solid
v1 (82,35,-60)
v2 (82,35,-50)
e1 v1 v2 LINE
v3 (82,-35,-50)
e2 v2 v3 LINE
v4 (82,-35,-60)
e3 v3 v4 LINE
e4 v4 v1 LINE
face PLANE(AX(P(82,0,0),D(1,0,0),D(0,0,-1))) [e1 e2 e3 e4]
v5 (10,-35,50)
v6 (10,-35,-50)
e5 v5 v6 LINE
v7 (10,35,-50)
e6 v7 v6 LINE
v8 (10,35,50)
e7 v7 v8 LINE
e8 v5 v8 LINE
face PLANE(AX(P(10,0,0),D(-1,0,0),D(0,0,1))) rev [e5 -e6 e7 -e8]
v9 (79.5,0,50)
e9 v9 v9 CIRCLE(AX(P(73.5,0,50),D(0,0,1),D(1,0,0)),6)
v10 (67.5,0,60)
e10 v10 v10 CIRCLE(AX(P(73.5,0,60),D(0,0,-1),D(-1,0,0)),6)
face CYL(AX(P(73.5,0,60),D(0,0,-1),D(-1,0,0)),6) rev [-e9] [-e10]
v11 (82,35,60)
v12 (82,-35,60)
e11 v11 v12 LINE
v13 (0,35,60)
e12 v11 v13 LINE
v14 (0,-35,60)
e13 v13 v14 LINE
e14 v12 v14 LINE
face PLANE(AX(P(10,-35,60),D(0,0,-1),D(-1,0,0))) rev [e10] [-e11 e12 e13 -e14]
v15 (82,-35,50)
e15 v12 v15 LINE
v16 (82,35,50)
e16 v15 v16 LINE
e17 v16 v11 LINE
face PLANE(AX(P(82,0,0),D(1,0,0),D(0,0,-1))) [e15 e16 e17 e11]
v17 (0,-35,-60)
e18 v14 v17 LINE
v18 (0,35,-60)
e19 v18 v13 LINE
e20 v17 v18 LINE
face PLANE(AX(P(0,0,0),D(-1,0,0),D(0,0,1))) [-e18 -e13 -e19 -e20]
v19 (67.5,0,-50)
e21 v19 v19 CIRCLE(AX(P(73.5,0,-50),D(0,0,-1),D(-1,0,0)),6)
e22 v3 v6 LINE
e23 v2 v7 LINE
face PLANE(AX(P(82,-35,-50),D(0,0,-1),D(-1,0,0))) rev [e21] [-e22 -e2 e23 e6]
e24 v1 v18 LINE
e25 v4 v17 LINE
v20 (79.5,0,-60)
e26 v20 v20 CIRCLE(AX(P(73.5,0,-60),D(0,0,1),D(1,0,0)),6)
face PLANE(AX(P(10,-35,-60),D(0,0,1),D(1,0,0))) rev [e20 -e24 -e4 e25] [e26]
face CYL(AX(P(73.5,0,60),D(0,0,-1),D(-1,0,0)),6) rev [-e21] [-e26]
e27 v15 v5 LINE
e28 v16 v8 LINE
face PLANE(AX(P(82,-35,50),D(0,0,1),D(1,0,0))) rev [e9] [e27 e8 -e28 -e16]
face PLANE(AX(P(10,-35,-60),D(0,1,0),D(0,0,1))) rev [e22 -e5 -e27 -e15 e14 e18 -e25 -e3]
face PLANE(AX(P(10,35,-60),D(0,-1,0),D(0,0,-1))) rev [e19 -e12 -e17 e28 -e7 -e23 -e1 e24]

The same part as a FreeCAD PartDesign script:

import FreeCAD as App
import Part
import Sketcher
from FreeCAD import Vector
Q = App.Units.Quantity

doc = App.newDocument("Part")
body = doc.addObject("PartDesign::Body", "Body")

# Sketch on YZ plane
sketch1 = doc.addObject("Sketcher::SketchObject", "Sketch")
body.addObject(sketch1)
sketch1.AttachmentSupport = (doc.YZ_Plane, [""])
sketch1.MapMode = "FlatFace"
sketch1.addGeometry([
    Part.LineSegment(Vector(-35, 60, 0), Vector(-35, -60, 0)),
    Part.LineSegment(Vector(-35, -60, 0), Vector(35, -60, 0)),
    Part.LineSegment(Vector(35, -60, 0), Vector(35, 60, 0)),
    Part.LineSegment(Vector(35, 60, 0), Vector(-35, 60, 0)),
], False)
sketch1.addConstraint([
    Sketcher.Constraint("Coincident", 0, 2, 1, 1),
    Sketcher.Constraint("Coincident", 1, 2, 2, 1),
    Sketcher.Constraint("Coincident", 2, 2, 3, 1),
    Sketcher.Constraint("Coincident", 3, 2, 0, 1),
    Sketcher.Constraint("Vertical", 0),
    Sketcher.Constraint("Horizontal", 1),
    Sketcher.Constraint("Vertical", 2),
    Sketcher.Constraint("Horizontal", 3),
    Sketcher.Constraint("Symmetric", 0, 2, 2, 2, -1, 1),
    Sketcher.Constraint("DistanceX", 1, 1, 1, 2, Q("70 mm")),
    Sketcher.Constraint("DistanceY", 0, 2, 0, 1, Q("120 mm")),
])
pad1 = doc.addObject("PartDesign::Pad", "Pad")
body.addObject(pad1)
pad1.Profile = sketch1
pad1.Length = 10

# Sketch on YZ plane
sketch2 = doc.addObject("Sketcher::SketchObject", "Sketch001")
body.addObject(sketch2)
sketch2.AttachmentSupport = (doc.YZ_Plane, [""])
sketch2.MapMode = "FlatFace"
sketch2.AttachmentOffset = App.Placement(Vector(0, 0, 10), App.Rotation())
sketch2.addGeometry([
    Part.LineSegment(Vector(-35, 60, 0), Vector(-35, 50, 0)),  # 0
    Part.LineSegment(Vector(-35, 50, 0), Vector(35, 50, 0)),  # 1
    Part.LineSegment(Vector(35, 50, 0), Vector(35, 60, 0)),  # 2
    Part.LineSegment(Vector(35, 60, 0), Vector(-35, 60, 0)),  # 3
    Part.LineSegment(Vector(-35, -50, 0), Vector(-35, -60, 0)),  # 4
    Part.LineSegment(Vector(-35, -60, 0), Vector(35, -60, 0)),  # 5
    Part.LineSegment(Vector(35, -60, 0), Vector(35, -50, 0)),  # 6
    Part.LineSegment(Vector(35, -50, 0), Vector(-35, -50, 0)),  # 7
], False)
sketch2.addConstraint([
    Sketcher.Constraint("Coincident", 0, 2, 1, 1),
    Sketcher.Constraint("Coincident", 1, 2, 2, 1),
    Sketcher.Constraint("Coincident", 2, 2, 3, 1),
    Sketcher.Constraint("Coincident", 3, 2, 0, 1),
    Sketcher.Constraint("Coincident", 4, 2, 5, 1),
    Sketcher.Constraint("Coincident", 5, 2, 6, 1),
    Sketcher.Constraint("Coincident", 6, 2, 7, 1),
    Sketcher.Constraint("Coincident", 7, 2, 4, 1),
    Sketcher.Constraint("Vertical", 0),
    Sketcher.Constraint("Horizontal", 1),
    Sketcher.Constraint("Vertical", 2),
    Sketcher.Constraint("Horizontal", 3),
    Sketcher.Constraint("Vertical", 4),
    Sketcher.Constraint("Horizontal", 5),
    Sketcher.Constraint("Vertical", 6),
    Sketcher.Constraint("Horizontal", 7),
    Sketcher.Constraint("Symmetric", 2, 2, 4, 2, -1, 1),
    Sketcher.Constraint("Symmetric", 0, 2, 6, 2, -1, 1),
    Sketcher.Constraint("Vertical", 3, 2, 4, 2),
    Sketcher.Constraint("DistanceX", 1, 1, 1, 2, Q("70 mm")),
    Sketcher.Constraint("DistanceY", 0, 2, 0, 1, Q("10 mm")),
    Sketcher.Constraint("DistanceY", -1, 1, 0, 2, Q("50 mm")),
])
pad2 = doc.addObject("PartDesign::Pad", "Pad001")
body.addObject(pad2)
pad2.Profile = sketch2
pad2.Length = 72

# Sketch on XY plane
sketch3 = doc.addObject("Sketcher::SketchObject", "Sketch002")
body.addObject(sketch3)
sketch3.AttachmentSupport = (doc.XY_Plane, [""])
sketch3.MapMode = "FlatFace"
sketch3.AttachmentOffset = App.Placement(Vector(0, 0, -60), App.Rotation())
sketch3.addGeometry(Part.Circle(Vector(73.5, 0, 0), Vector(0, 0, 1), 6), False)
sketch3.addConstraint([
    Sketcher.Constraint("PointOnObject", 0, 3, -1),
    Sketcher.Constraint("Diameter", 0, Q("12 mm")),
    Sketcher.Constraint("DistanceX", -1, 1, 0, 3, Q("73.5 mm")),
])
pocket1 = doc.addObject("PartDesign::Pocket", "Pocket")
body.addObject(pocket1)
pocket1.Profile = sketch3
pocket1.Type = "ThroughAll"
pocket1.Midplane = True

doc.recompute()
